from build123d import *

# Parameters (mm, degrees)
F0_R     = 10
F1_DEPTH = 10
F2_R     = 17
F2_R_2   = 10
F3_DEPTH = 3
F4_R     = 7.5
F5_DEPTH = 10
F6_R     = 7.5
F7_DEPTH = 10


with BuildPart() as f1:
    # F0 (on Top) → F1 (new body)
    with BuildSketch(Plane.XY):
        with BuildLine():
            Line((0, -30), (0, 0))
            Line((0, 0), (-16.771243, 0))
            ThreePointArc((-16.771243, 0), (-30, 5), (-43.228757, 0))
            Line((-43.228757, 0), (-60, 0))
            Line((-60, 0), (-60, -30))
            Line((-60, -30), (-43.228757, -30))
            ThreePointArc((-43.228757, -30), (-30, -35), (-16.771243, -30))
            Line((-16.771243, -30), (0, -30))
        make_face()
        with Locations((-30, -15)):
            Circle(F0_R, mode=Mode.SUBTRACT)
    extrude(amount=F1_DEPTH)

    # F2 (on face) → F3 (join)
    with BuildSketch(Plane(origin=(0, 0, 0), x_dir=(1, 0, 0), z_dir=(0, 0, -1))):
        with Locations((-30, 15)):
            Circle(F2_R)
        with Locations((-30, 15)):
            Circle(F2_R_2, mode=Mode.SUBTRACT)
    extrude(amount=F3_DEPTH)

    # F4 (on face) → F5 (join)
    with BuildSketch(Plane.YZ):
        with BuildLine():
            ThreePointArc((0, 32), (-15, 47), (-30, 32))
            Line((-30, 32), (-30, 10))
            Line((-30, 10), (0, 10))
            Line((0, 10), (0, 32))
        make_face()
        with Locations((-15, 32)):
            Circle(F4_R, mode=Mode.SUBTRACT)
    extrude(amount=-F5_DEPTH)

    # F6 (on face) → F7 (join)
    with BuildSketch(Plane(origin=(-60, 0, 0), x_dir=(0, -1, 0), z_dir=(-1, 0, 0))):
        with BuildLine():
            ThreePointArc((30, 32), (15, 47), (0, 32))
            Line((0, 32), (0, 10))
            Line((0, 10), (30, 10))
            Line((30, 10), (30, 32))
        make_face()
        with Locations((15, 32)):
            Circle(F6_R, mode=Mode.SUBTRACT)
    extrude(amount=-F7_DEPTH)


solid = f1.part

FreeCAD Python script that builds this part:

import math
import FreeCAD as App
import Part
import Sketcher
from FreeCAD import Vector
Q = App.Units.Quantity

doc = App.newDocument("Part")
body = doc.addObject("PartDesign::Body", "Body")

# Sketch on XY plane
sketch1 = doc.addObject("Sketcher::SketchObject", "Sketch")
body.addObject(sketch1)
sketch1.AttachmentSupport = (doc.XY_Plane, [""])
sketch1.MapMode = "FlatFace"
sketch1.addGeometry([
    Part.LineSegment(Vector(0, -30, 0), Vector(0, 0, 0)),  # 0
    Part.LineSegment(Vector(0, 0, 0), Vector(-16.771243, 0, 0)),  # 1
    Part.ArcOfCircle(Part.Circle(Vector(-30, -15.000001, 0), Vector(0, 0, 1), 20.000001), math.radians(48.590379), math.radians(131.409621)),  # 2
    Part.LineSegment(Vector(-43.228757, 0, 0), Vector(-60, 0, 0)),  # 3
    Part.LineSegment(Vector(-60, 0, 0), Vector(-60, -30, 0)),  # 4
    Part.LineSegment(Vector(-60, -30, 0), Vector(-43.228757, -30, 0)),  # 5
    Part.ArcOfCircle(Part.Circle(Vector(-30, -14.999999, 0), Vector(0, 0, 1), 20.000001), math.radians(-131.409621), math.radians(-48.590379)),  # 6
    Part.LineSegment(Vector(-16.771243, -30, 0), Vector(0, -30, 0)),  # 7
    Part.Circle(Vector(-30, -15, 0), Vector(0, 0, 1), 10),  # 8
], False)
sketch1.addConstraint([
    Sketcher.Constraint("Coincident", 0, 2, 1, 1),
    Sketcher.Constraint("Coincident", 1, 2, 2, 1),
    Sketcher.Constraint("Coincident", 2, 2, 3, 1),
    Sketcher.Constraint("Coincident", 3, 2, 4, 1),
    Sketcher.Constraint("Coincident", 4, 2, 5, 1),
    Sketcher.Constraint("Coincident", 5, 2, 6, 1),
    Sketcher.Constraint("Coincident", 6, 2, 7, 1),
    Sketcher.Constraint("Coincident", 7, 2, 0, 1),
    Sketcher.Constraint("Vertical", 0),
    Sketcher.Constraint("Horizontal", 1),
    Sketcher.Constraint("Horizontal", 3),
    Sketcher.Constraint("Vertical", 4),
    Sketcher.Constraint("Horizontal", 5),
    Sketcher.Constraint("Horizontal", 7),
    Sketcher.Constraint("Coincident", 0, 2, -1, 1),
    Sketcher.Constraint("Coincident", 6, 3, 2, 3),
    Sketcher.Constraint("Coincident", 8, 3, 2, 3),
    Sketcher.Constraint("Equal", 2, 6),
    Sketcher.Constraint("PointOnObject", 2, 2, -1),
    Sketcher.Constraint("Horizontal", 5, 2, 6, 2),
    Sketcher.Constraint("Vertical", 2, 2, 5, 2),
    Sketcher.Constraint("Equal", 1, 3),
    Sketcher.Constraint("Diameter", 8, Q("20 mm")),
    Sketcher.Constraint("Radius", 2, Q("20.000001 mm")),
    Sketcher.Constraint("DistanceY", 0, 1, 0, 2, Q("30 mm")),
    Sketcher.Constraint("DistanceX", 2, 3, -1, 1, Q("30 mm")),
])
pad1 = doc.addObject("PartDesign::Pad", "Pad")
body.addObject(pad1)
pad1.Profile = sketch1
pad1.Length = 10

# Sketch on XY plane
sketch2 = doc.addObject("Sketcher::SketchObject", "Sketch001")
body.addObject(sketch2)
sketch2.AttachmentSupport = (doc.XY_Plane, [""])
sketch2.MapMode = "FlatFace"
sketch2.addGeometry([
    Part.Circle(Vector(-30, -15, 0), Vector(0, 0, 1), 17),
    Part.Circle(Vector(-30, -15, 0), Vector(0, 0, 1), 10),
], False)
sketch2.addConstraint([
    Sketcher.Constraint("Coincident", 1, 3, 0, 3),
    Sketcher.Constraint("Diameter", 0, Q("34 mm")),
    Sketcher.Constraint("Diameter", 1, Q("20 mm")),
    Sketcher.Constraint("DistanceX", 0, 3, -1, 1, Q("30 mm")),
    Sketcher.Constraint("DistanceY", 0, 3, -1, 1, Q("15 mm")),
])
pad2 = doc.addObject("PartDesign::Pad", "Pad001")
body.addObject(pad2)
pad2.Profile = sketch2
pad2.Length = 3
pad2.Reversed = True

# Sketch on YZ plane
sketch3 = doc.addObject("Sketcher::SketchObject", "Sketch002")
body.addObject(sketch3)
sketch3.AttachmentSupport = (doc.YZ_Plane, [""])
sketch3.MapMode = "FlatFace"
sketch3.addGeometry([
    Part.ArcOfCircle(Part.Circle(Vector(-15, 32, 0), Vector(0, 0, 1), 15), math.radians(0), math.radians(180)),  # 0
    Part.LineSegment(Vector(-30, 32, 0), Vector(-30, 10, 0)),  # 1
    Part.LineSegment(Vector(-30, 10, 0), Vector(0, 10, 0)),  # 2
    Part.LineSegment(Vector(0, 10, 0), Vector(0, 32, 0)),  # 3
    Part.Circle(Vector(-15, 32, 0), Vector(0, 0, 1), 7.5),  # 4
], False)
sketch3.addConstraint([
    Sketcher.Constraint("Tangent", 0, 2, 1, 1),
    Sketcher.Constraint("Coincident", 1, 2, 2, 1),
    Sketcher.Constraint("Coincident", 2, 2, 3, 1),
    Sketcher.Constraint("Tangent", 3, 2, 0, 1),
    Sketcher.Constraint("Vertical", 1),
    Sketcher.Constraint("Horizontal", 2),
    Sketcher.Constraint("Vertical", 3),
    Sketcher.Constraint("Coincident", 4, 3, 0, 3),
    Sketcher.Constraint("PointOnObject", 2, 2, -2),
    Sketcher.Constraint("Diameter", 4, Q("15 mm")),
    Sketcher.Constraint("Radius", 0, Q("15 mm")),
    Sketcher.Constraint("DistanceY", 1, 2, 1, 1, Q("22 mm")),
    Sketcher.Constraint("DistanceY", -1, 1, 0, 3, Q("32 mm")),
])
pad3 = doc.addObject("PartDesign::Pad", "Pad002")
body.addObject(pad3)
pad3.Profile = sketch3
pad3.Length = 10
pad3.Reversed = True

# Sketch on YZ plane
sketch4 = doc.addObject("Sketcher::SketchObject", "Sketch003")
body.addObject(sketch4)
sketch4.AttachmentSupport = (doc.YZ_Plane, [""])
sketch4.MapMode = "FlatFace"
sketch4.AttachmentOffset = App.Placement(Vector(0, 0, -60), App.Rotation())
sketch4.addGeometry([
    Part.ArcOfCircle(Part.Circle(Vector(-15, 32, 0), Vector(0, 0, 1), 15), math.radians(0), math.radians(180)),  # 0
    Part.LineSegment(Vector(0, 32, 0), Vector(0, 10, 0)),  # 1
    Part.LineSegment(Vector(0, 10, 0), Vector(-30, 10, 0)),  # 2
    Part.LineSegment(Vector(-30, 10, 0), Vector(-30, 32, 0)),  # 3
    Part.Circle(Vector(-15, 32, 0), Vector(0, 0, 1), 7.5),  # 4
], False)
sketch4.addConstraint([
    Sketcher.Constraint("Tangent", 0, 1, 1, 1),
    Sketcher.Constraint("Coincident", 1, 2, 2, 1),
    Sketcher.Constraint("Coincident", 2, 2, 3, 1),
    Sketcher.Constraint("Tangent", 3, 2, 0, 2),
    Sketcher.Constraint("Vertical", 1),
    Sketcher.Constraint("Horizontal", 2),
    Sketcher.Constraint("Vertical", 3),
    Sketcher.Constraint("Coincident", 4, 3, 0, 3),
    Sketcher.Constraint("PointOnObject", 0, 1, -2),
    Sketcher.Constraint("Diameter", 4, Q("15 mm")),
    Sketcher.Constraint("Radius", 0, Q("15 mm")),
    Sketcher.Constraint("DistanceY", 1, 2, 1, 1, Q("22 mm")),
    Sketcher.Constraint("DistanceY", -1, 1, 0, 3, Q("32 mm")),
])
pad4 = doc.addObject("PartDesign::Pad", "Pad003")
body.addObject(pad4)
pad4.Profile = sketch4
pad4.Length = 10

doc.recompute()
